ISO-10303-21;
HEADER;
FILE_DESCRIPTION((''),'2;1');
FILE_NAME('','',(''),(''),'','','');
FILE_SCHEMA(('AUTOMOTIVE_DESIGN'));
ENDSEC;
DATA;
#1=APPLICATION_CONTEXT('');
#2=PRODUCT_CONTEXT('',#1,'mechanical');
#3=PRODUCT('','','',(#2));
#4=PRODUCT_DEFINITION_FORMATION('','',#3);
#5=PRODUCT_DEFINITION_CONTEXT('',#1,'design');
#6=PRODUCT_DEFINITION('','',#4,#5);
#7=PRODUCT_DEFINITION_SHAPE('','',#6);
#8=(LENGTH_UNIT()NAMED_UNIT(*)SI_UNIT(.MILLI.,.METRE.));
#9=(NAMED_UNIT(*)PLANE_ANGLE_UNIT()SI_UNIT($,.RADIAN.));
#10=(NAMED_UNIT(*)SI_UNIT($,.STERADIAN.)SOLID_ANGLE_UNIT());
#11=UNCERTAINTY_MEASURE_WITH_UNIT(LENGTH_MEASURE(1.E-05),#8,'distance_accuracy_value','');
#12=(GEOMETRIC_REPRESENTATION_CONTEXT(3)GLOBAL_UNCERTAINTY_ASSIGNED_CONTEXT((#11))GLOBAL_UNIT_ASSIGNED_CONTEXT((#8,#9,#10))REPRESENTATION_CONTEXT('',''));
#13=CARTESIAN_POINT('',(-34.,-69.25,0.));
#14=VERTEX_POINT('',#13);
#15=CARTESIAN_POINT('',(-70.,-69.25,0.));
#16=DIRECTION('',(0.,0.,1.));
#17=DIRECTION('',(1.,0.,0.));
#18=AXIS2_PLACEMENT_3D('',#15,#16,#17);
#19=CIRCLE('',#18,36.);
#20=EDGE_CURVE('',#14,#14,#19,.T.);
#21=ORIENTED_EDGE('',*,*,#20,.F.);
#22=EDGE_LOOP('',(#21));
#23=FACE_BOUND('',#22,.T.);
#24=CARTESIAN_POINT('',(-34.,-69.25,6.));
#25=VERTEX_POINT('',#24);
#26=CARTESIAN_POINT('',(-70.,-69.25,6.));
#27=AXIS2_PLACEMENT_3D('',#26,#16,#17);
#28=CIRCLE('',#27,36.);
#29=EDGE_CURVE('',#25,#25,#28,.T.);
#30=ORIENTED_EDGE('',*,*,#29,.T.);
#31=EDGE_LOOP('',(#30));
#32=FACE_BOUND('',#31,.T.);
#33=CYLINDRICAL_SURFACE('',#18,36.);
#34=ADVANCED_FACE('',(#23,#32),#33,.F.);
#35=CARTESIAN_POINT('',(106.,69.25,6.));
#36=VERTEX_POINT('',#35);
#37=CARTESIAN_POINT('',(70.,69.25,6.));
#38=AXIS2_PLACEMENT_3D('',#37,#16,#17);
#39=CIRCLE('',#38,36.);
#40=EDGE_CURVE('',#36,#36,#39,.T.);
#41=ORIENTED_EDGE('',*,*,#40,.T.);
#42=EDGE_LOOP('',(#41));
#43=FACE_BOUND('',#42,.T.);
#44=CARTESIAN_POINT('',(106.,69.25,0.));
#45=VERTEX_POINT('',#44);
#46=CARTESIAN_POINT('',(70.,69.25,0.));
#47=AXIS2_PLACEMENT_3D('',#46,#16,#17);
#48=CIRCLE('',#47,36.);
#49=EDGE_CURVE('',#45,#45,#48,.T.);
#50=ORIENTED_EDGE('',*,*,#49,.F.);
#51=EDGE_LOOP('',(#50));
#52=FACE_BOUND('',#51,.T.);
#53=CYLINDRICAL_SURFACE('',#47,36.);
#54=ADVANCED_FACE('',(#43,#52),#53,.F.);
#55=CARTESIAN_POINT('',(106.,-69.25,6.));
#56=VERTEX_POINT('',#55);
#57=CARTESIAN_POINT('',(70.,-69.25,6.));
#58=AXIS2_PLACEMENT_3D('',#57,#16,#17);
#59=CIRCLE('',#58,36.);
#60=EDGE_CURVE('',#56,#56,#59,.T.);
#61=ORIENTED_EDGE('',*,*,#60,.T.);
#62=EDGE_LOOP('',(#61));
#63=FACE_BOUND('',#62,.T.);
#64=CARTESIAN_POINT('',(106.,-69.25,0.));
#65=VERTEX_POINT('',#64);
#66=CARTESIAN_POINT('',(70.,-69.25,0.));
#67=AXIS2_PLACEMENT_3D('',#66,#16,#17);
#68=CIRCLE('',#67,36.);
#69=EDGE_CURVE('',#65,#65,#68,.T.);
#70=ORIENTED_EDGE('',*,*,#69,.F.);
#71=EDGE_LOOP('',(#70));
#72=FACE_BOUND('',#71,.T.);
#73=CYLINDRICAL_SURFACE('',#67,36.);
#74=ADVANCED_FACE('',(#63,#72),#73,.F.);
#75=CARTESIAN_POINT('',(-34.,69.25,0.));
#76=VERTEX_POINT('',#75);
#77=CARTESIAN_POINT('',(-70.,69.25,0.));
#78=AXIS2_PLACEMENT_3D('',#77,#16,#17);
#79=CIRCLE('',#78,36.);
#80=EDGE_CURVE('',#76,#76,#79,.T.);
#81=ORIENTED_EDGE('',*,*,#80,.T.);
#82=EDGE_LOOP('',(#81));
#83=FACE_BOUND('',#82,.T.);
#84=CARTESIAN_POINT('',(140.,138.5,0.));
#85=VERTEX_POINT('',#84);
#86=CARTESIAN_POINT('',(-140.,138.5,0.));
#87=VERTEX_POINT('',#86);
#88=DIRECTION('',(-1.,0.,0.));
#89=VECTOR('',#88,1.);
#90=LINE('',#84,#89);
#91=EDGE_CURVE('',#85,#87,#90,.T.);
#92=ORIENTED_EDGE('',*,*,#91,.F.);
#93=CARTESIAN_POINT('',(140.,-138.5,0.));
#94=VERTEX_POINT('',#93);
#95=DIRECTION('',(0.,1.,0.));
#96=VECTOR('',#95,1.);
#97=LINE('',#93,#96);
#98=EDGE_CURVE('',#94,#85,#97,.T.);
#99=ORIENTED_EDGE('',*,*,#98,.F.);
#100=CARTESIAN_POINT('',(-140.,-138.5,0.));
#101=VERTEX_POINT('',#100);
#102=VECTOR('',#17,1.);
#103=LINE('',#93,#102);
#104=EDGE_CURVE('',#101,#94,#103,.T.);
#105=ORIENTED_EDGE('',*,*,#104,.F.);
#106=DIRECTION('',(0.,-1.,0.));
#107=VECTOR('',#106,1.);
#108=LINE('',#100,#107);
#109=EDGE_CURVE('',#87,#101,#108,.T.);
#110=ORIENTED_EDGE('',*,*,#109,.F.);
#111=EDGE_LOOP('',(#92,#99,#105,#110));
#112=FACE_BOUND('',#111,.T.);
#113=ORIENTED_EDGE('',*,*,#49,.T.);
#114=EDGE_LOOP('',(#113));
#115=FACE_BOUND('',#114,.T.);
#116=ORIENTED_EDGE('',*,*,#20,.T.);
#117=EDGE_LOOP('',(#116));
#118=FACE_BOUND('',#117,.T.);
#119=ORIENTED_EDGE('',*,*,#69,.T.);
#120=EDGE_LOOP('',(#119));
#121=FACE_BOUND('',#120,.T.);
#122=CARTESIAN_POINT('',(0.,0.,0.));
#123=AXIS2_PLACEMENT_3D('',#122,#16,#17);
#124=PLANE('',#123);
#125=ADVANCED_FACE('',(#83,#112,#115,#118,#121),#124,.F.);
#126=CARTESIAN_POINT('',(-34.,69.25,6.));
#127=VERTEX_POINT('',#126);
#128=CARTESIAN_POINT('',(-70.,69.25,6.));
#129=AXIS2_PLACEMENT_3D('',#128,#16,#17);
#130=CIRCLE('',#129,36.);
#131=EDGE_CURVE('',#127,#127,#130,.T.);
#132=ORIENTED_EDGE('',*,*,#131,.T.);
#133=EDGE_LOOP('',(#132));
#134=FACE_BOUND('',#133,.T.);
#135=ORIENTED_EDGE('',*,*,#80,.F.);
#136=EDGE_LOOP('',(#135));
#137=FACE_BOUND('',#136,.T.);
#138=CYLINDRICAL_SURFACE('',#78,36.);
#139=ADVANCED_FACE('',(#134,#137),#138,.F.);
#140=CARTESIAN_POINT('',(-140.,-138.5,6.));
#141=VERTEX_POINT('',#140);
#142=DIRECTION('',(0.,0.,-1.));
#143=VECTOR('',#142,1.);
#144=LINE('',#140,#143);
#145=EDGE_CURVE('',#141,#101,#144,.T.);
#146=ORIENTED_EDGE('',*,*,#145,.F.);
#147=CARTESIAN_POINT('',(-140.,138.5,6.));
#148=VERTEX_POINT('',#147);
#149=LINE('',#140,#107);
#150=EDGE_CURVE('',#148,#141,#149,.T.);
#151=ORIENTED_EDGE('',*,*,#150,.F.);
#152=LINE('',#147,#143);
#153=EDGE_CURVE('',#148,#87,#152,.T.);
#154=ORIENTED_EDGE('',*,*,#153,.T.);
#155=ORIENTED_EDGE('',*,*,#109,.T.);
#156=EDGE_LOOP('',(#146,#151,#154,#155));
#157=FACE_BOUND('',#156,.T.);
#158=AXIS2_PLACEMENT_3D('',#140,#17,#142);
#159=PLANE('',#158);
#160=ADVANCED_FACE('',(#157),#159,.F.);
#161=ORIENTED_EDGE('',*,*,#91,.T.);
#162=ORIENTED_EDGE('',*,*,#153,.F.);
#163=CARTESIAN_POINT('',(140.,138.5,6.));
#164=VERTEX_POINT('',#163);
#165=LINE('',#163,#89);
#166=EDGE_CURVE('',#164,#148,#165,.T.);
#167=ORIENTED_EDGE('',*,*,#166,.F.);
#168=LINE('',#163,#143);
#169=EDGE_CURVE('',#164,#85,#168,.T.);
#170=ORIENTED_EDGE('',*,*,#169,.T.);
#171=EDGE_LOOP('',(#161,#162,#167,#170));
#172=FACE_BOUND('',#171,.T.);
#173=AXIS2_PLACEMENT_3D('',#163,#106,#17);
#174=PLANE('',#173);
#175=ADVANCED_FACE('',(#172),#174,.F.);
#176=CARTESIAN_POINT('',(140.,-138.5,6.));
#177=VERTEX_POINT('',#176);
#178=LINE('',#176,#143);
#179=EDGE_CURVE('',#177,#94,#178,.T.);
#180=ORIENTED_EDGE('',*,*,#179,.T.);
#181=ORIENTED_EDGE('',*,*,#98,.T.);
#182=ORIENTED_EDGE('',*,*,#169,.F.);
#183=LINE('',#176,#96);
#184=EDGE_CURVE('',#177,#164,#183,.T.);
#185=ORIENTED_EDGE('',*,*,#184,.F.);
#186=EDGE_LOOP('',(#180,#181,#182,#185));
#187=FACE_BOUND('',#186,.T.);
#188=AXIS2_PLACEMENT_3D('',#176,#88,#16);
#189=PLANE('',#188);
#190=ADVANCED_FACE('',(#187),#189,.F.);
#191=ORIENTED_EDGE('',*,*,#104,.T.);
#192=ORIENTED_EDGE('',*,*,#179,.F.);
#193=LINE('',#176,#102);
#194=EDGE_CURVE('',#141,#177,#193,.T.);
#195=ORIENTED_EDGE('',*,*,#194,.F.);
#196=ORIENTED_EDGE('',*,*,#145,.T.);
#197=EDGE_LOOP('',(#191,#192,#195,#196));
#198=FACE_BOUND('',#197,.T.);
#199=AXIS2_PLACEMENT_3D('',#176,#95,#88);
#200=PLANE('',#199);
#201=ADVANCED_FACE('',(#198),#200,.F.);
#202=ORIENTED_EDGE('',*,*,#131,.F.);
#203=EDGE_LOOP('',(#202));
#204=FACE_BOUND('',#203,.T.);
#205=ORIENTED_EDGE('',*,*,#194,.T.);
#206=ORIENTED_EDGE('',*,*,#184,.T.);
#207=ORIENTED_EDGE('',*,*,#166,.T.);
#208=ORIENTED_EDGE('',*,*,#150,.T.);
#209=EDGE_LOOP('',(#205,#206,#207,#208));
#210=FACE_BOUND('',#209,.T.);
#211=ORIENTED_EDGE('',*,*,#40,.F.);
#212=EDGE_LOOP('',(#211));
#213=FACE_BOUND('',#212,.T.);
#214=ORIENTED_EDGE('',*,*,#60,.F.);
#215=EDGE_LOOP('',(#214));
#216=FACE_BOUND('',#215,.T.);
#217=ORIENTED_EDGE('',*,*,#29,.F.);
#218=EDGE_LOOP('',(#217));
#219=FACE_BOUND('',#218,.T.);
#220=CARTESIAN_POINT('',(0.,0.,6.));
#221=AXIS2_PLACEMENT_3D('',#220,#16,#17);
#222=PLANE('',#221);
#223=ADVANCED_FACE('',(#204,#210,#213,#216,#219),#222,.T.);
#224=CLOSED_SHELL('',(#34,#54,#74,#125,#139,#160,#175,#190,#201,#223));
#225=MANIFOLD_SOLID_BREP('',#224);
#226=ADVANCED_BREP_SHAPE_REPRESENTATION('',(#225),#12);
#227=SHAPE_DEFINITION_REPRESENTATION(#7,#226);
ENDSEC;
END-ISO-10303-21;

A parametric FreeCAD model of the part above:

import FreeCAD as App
import Part
import Sketcher

doc = App.newDocument("Part")
body = doc.addObject("PartDesign::Body", "Body")

# Sketch on XY plane
sketch1 = body.newObject("Sketcher::SketchObject", "Sketch")
sketch1.AttachmentSupport = (doc.getObject("XY_Plane"), [""])
sketch1.MapMode = "FlatFace"
sketch1.addGeometry([
    Part.LineSegment(App.Vector(-140, 138, 0), App.Vector(-140, -138, 0)),
    Part.LineSegment(App.Vector(-140, -138, 0), App.Vector(140, -138, 0)),
    Part.LineSegment(App.Vector(140, -138, 0), App.Vector(140, 138, 0)),
    Part.LineSegment(App.Vector(140, 138, 0), App.Vector(-140, 138, 0)),
], False)
sketch1.addConstraint([
    Sketcher.Constraint("Coincident", 0, 2, 1, 1),
    Sketcher.Constraint("Coincident", 1, 2, 2, 1),
    Sketcher.Constraint("Coincident", 2, 2, 3, 1),
    Sketcher.Constraint("Coincident", 3, 2, 0, 1),
    Sketcher.Constraint("Vertical", 0),
    Sketcher.Constraint("Horizontal", 1),
    Sketcher.Constraint("Vertical", 2),
    Sketcher.Constraint("Horizontal", 3),
    Sketcher.Constraint("Symmetric", 0, 2, 2, 2, -1, 1),
    Sketcher.Constraint("DistanceX", 1, 1, 1, 2, 280.0),
    Sketcher.Constraint("DistanceY", 0, 2, 0, 1, 277.0),
])
pad1 = body.newObject("PartDesign::Pad", "Pad")
pad1.Profile = sketch1
pad1.Length = 6

# Sketch on XY plane
sketch2 = body.newObject("Sketcher::SketchObject", "Sketch001")
sketch2.AttachmentSupport = (doc.getObject("XY_Plane"), [""])
sketch2.MapMode = "FlatFace"
sketch2.AttachmentOffset = App.Placement(App.Vector(0, 0, 6), App.Rotation())
sketch2.addGeometry([
    Part.Circle(App.Vector(-70, 69, 0), App.Vector(0, 0, 1), 36),
    Part.Circle(App.Vector(-70, -69, 0), App.Vector(0, 0, 1), 36),
    Part.Circle(App.Vector(70, -69, 0), App.Vector(0, 0, 1), 36),
    Part.Circle(App.Vector(70, 69, 0), App.Vector(0, 0, 1), 36),
], False)
sketch2.addConstraint([
    Sketcher.Constraint("Equal", 0, 1),
    Sketcher.Constraint("Equal", 1, 2),
    Sketcher.Constraint("Equal", 2, 3),
    Sketcher.Constraint("Symmetric", 0, 3, 2, 3, -1, 1),
    Sketcher.Constraint("Symmetric", 1, 3, 3, 3, -1, 1),
    Sketcher.Constraint("Symmetric", 1, 3, 2, 3, -2),
    Sketcher.Constraint("Diameter", 0, 72.0),
    Sketcher.Constraint("DistanceX", 0, 3, -1, 1, 70.0),
    Sketcher.Constraint("DistanceY", 1, 3, 0, 3, 138.5),
])
pocket1 = body.newObject("PartDesign::Pocket", "Pocket")
pocket1.Profile = sketch2
pocket1.Type = "ThroughAll"

doc.recompute()
